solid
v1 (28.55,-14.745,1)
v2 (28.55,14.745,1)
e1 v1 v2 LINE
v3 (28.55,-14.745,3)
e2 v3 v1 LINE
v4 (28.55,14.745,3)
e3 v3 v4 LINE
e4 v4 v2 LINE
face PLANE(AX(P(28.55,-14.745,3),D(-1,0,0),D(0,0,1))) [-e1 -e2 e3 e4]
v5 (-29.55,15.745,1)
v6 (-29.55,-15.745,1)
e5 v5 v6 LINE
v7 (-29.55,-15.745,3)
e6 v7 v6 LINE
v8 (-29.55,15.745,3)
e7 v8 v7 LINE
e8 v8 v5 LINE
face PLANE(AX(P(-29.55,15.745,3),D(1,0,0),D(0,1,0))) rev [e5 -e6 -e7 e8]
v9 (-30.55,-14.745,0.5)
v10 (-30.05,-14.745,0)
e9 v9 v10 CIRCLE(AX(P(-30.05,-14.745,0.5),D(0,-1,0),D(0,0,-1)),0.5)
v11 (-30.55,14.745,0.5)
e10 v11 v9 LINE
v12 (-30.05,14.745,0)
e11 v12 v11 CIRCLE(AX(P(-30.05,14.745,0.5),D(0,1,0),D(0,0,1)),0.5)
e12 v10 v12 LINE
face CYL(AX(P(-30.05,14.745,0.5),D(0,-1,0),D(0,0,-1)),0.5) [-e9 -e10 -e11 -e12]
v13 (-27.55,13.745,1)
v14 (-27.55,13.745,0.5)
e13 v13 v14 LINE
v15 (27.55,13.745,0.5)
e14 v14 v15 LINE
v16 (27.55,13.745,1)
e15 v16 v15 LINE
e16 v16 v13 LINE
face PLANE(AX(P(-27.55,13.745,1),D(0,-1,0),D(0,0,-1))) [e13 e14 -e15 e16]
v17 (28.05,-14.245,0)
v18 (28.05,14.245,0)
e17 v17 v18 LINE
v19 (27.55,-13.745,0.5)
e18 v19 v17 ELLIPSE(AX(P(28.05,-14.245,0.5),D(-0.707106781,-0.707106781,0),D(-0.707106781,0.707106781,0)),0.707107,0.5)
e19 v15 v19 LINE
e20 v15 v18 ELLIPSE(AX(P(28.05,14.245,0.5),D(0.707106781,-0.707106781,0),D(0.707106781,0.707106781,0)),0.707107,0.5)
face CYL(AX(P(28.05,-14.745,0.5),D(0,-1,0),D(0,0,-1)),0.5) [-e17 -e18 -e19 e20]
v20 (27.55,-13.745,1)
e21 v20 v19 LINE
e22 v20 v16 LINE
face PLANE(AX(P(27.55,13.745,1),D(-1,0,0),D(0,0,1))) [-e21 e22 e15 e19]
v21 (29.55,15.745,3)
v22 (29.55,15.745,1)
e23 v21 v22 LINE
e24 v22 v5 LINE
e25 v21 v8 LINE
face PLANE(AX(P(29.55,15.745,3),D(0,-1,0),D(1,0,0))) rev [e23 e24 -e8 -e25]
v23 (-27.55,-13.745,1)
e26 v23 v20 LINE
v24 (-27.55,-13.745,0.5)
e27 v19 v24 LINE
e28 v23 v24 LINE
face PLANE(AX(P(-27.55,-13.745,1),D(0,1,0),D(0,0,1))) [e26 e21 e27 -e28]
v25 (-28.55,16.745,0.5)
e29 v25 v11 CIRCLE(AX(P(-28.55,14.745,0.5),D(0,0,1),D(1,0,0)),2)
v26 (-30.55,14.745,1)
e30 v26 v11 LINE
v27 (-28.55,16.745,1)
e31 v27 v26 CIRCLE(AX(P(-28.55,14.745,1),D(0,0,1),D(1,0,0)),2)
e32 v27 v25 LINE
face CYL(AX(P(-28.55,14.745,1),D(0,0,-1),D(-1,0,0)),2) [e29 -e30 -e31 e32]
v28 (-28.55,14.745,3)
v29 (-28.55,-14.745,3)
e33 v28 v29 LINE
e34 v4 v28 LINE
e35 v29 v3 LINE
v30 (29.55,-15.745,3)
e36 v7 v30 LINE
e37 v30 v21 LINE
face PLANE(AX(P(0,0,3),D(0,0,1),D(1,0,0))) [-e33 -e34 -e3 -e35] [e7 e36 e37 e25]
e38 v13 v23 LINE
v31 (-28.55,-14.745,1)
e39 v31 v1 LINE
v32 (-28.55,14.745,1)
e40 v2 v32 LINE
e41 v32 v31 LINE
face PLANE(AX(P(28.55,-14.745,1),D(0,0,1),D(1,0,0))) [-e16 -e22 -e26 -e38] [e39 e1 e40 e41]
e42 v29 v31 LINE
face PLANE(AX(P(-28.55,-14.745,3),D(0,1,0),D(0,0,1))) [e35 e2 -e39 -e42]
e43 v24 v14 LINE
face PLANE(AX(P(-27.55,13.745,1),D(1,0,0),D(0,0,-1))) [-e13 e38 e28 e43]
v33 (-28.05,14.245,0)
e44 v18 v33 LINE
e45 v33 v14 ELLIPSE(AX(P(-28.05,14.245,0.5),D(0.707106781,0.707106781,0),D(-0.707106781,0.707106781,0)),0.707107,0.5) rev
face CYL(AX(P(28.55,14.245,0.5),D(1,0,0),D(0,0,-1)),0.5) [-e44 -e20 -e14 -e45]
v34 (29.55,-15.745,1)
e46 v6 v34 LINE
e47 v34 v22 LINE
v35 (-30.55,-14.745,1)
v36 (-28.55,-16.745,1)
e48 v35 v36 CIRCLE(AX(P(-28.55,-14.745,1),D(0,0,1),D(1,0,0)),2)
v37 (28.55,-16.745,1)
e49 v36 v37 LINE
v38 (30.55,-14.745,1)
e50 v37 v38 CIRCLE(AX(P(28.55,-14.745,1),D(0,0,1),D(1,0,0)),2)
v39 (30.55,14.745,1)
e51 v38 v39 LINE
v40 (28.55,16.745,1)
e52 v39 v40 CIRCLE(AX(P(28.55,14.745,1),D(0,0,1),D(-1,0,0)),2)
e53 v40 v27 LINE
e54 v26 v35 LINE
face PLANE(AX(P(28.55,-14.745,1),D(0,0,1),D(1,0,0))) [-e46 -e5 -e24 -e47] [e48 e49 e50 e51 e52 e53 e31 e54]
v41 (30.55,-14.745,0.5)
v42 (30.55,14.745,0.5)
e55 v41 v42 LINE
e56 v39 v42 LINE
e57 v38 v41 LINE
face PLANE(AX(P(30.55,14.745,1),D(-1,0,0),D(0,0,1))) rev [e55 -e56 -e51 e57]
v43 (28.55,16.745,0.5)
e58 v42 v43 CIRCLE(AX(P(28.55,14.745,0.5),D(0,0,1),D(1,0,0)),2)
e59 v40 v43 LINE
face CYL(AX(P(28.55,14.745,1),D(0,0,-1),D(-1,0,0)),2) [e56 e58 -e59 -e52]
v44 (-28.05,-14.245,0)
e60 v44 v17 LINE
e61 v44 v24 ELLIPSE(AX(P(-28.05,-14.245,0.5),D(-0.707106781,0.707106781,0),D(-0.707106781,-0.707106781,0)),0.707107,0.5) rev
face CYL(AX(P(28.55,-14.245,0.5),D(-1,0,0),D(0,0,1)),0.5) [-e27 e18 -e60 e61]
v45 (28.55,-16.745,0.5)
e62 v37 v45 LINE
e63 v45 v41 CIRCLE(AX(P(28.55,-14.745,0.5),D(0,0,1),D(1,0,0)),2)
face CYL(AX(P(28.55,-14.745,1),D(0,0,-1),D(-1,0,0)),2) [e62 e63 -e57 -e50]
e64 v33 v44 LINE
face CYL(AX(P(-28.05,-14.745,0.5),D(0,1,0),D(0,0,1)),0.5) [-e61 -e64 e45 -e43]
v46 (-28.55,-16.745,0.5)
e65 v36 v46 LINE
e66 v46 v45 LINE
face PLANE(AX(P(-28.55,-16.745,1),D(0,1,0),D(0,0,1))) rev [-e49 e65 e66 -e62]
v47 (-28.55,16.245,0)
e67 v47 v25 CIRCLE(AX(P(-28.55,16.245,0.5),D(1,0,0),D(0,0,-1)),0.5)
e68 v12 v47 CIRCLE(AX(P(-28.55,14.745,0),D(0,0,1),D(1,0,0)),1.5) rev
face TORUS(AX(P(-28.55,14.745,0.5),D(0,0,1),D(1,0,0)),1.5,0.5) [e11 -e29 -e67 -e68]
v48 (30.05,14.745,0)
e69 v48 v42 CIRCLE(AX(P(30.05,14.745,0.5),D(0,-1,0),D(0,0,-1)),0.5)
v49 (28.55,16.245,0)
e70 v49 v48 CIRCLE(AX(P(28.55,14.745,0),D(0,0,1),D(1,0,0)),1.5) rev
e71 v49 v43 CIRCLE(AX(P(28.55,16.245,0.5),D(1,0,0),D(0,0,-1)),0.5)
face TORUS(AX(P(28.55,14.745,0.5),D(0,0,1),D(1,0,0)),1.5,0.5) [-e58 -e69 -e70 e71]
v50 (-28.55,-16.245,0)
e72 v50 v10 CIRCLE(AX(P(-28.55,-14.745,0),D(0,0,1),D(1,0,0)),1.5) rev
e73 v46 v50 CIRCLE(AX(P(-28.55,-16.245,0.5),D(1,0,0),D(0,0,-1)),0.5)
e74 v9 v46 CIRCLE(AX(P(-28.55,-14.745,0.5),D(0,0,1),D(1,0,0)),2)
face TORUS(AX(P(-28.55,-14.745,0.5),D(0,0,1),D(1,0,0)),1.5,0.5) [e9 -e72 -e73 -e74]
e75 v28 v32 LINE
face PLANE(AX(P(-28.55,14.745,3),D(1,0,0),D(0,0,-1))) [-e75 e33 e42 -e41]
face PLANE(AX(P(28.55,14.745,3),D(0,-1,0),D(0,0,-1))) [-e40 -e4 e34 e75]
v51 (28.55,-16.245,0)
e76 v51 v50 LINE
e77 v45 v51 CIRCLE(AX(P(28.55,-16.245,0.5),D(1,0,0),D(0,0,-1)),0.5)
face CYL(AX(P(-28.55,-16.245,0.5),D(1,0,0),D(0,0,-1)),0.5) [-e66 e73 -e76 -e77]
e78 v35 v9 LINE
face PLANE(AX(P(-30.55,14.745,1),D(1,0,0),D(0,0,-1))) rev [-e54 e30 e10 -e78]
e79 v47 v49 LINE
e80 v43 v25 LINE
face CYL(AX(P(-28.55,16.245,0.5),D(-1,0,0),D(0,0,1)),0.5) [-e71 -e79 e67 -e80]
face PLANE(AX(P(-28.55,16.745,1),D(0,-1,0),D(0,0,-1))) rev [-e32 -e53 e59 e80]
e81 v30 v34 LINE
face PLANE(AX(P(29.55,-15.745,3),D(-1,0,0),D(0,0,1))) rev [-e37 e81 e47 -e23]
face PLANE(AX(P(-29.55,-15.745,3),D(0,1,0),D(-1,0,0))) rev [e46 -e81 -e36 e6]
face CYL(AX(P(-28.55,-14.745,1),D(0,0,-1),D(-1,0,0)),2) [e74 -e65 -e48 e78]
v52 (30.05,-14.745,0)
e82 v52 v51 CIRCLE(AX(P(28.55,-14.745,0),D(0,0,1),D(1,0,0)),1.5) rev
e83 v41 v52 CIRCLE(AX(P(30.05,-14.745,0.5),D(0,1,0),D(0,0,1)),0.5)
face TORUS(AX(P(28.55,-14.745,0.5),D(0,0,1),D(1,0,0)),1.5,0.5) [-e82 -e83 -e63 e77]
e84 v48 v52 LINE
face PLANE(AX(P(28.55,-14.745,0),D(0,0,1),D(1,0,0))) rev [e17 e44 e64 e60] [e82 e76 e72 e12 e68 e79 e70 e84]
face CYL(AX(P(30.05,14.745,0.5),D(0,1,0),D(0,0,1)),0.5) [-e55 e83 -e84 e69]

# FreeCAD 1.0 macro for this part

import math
import FreeCAD as App
import Part
import Sketcher


def edges_at(feature, points):
    """Names of the edges that pass closest to the given points."""
    edges = feature.Shape.Edges
    near = lambda p: min(range(len(edges)), key=lambda i: edges[i].distToShape(Part.Vertex(*p))[0])
    return sorted({f"Edge{near(p) + 1}" for p in points})


def add_polygon(sketch, points):
    """Adds a closed chain of lines whose ends are joined by coincident constraints."""
    first, n = sketch.GeometryCount, len(points)
    for a, b in zip(points, points[1:] + points[:1]):
        sketch.addGeometry(Part.LineSegment(App.Vector(*a, 0), App.Vector(*b, 0)), False)
    for i in range(n):
        sketch.addConstraint(Sketcher.Constraint("Coincident", first + i, 2, first + (i + 1) % n, 1))

doc = App.newDocument("Part")
body = doc.addObject("PartDesign::Body", "Body")

sketch1 = body.newObject("Sketcher::SketchObject", "Sketch")
sketch1.AttachmentSupport = (doc.getObject("XY_Plane"), [""])
sketch1.MapMode = "FlatFace"
sketch1.addGeometry(Part.LineSegment(App.Vector(28.55, 16.745, 0), App.Vector(-28.55, 16.745, 0)), False)
sketch1.addGeometry(Part.ArcOfCircle(Part.Circle(App.Vector(-28.55, 14.745, 0), App.Vector(0, 0, 1), 2), math.radians(90), math.radians(180)), False)
sketch1.addGeometry(Part.LineSegment(App.Vector(-30.55, 14.745, 0), App.Vector(-30.55, -14.745, 0)), False)
sketch1.addGeometry(Part.ArcOfCircle(Part.Circle(App.Vector(-28.55, -14.745, 0), App.Vector(0, 0, 1), 2), math.radians(-180), math.radians(-90)), False)
sketch1.addGeometry(Part.LineSegment(App.Vector(-28.55, -16.745, 0), App.Vector(28.55, -16.745, 0)), False)
sketch1.addGeometry(Part.ArcOfCircle(Part.Circle(App.Vector(28.55, -14.745, 0), App.Vector(0, 0, 1), 2), math.radians(-90), math.radians(0)), False)
sketch1.addGeometry(Part.LineSegment(App.Vector(30.55, -14.745, 0), App.Vector(30.55, 14.745, 0)), False)
sketch1.addGeometry(Part.ArcOfCircle(Part.Circle(App.Vector(28.55, 14.745, 0), App.Vector(0, 0, 1), 2), math.radians(0), math.radians(90)), False)
add_polygon(sketch1, [(-27.55, -13.745), (-27.55, 13.745), (27.55, 13.745), (27.55, -13.745)])
sketch1.addConstraint(Sketcher.Constraint("Tangent", 0, 2, 1, 1))
sketch1.addConstraint(Sketcher.Constraint("Tangent", 1, 2, 2, 1))
sketch1.addConstraint(Sketcher.Constraint("Tangent", 2, 2, 3, 1))
sketch1.addConstraint(Sketcher.Constraint("Tangent", 3, 2, 4, 1))
sketch1.addConstraint(Sketcher.Constraint("Tangent", 4, 2, 5, 1))
sketch1.addConstraint(Sketcher.Constraint("Tangent", 5, 2, 6, 1))
sketch1.addConstraint(Sketcher.Constraint("Tangent", 6, 2, 7, 1))
sketch1.addConstraint(Sketcher.Constraint("Tangent", 7, 2, 0, 1))
sketch1.addConstraint(Sketcher.Constraint("Horizontal", 0))
sketch1.addConstraint(Sketcher.Constraint("Vertical", 2))
sketch1.addConstraint(Sketcher.Constraint("Horizontal", 4))
sketch1.addConstraint(Sketcher.Constraint("Vertical", 6))
sketch1.addConstraint(Sketcher.Constraint("Vertical", 8))
sketch1.addConstraint(Sketcher.Constraint("Horizontal", 9))
sketch1.addConstraint(Sketcher.Constraint("Vertical", 10))
sketch1.addConstraint(Sketcher.Constraint("Horizontal", 11))
sketch1.addConstraint(Sketcher.Constraint("Equal", 1, 3))
sketch1.addConstraint(Sketcher.Constraint("Equal", 3, 5))
sketch1.addConstraint(Sketcher.Constraint("Equal", 5, 7))
sketch1.addConstraint(Sketcher.Constraint("Symmetric", 1, 3, 5, 3, -1, 1))
sketch1.addConstraint(Sketcher.Constraint("Symmetric", 8, 2, 10, 2, -1, 1))
sketch1.addConstraint(Sketcher.Constraint("Radius", 1, 2.0))
sketch1.addConstraint(Sketcher.Constraint("DistanceX", 0, 2, 0, 1, 57.1))
sketch1.addConstraint(Sketcher.Constraint("DistanceX", 9, 1, 9, 2, 55.1))
sketch1.addConstraint(Sketcher.Constraint("DistanceY", 8, 2, 1, 3, 1.0))
sketch1.addConstraint(Sketcher.Constraint("DistanceY", 2, 2, 2, 1, 29.49))
pad1 = body.newObject("PartDesign::Pad", "Pad")
pad1.Profile = sketch1
pad1.Length = 1
doc.recompute()

fillet = body.newObject("PartDesign::Fillet", "Fillet")
fillet.Base = (pad1, edges_at(pad1, [
    (0, 16.745, 0),
    (29.964, 16.159, 0),
    (30.55, 0, 0),
    (29.964, -16.159, 0),
    (27.55, 0, 0),
    (0, 13.745, 0),
    (-27.55, 0, 0),
    (0, -13.745, 0),
    (0, -16.745, 0),
    (-29.964, -16.159, 0),
    (-30.55, 0, 0),
    (-29.964, 16.159, 0),
]))
fillet.Radius = 0.5

sketch2 = body.newObject("Sketcher::SketchObject", "Sketch001")
sketch2.AttachmentSupport = (doc.getObject("XY_Plane"), [""])
sketch2.MapMode = "FlatFace"
sketch2.AttachmentOffset = App.Placement(App.Vector(0, 0, 1), App.Rotation())
add_polygon(sketch2, [(-29.55, 15.745), (-29.55, -15.745), (29.55, -15.745), (29.55, 15.745)])
add_polygon(sketch2, [(28.55, -14.745), (-28.55, -14.745), (-28.55, 14.745), (28.55, 14.745)])
sketch2.addConstraint(Sketcher.Constraint("Vertical", 0))
sketch2.addConstraint(Sketcher.Constraint("Horizontal", 1))
sketch2.addConstraint(Sketcher.Constraint("Vertical", 2))
sketch2.addConstraint(Sketcher.Constraint("Horizontal", 3))
sketch2.addConstraint(Sketcher.Constraint("Horizontal", 4))
sketch2.addConstraint(Sketcher.Constraint("Vertical", 5))
sketch2.addConstraint(Sketcher.Constraint("Horizontal", 6))
sketch2.addConstraint(Sketcher.Constraint("Vertical", 7))
sketch2.addConstraint(Sketcher.Constraint("Symmetric", 0, 2, 2, 2, -1, 1))
sketch2.addConstraint(Sketcher.Constraint("Symmetric", 4, 2, 6, 2, -1, 1))
sketch2.addConstraint(Sketcher.Constraint("DistanceX", 1, 1, 1, 2, 59.1))
sketch2.addConstraint(Sketcher.Constraint("DistanceX", 4, 2, 4, 1, 57.1))
sketch2.addConstraint(Sketcher.Constraint("DistanceY", 0, 2, 4, 2, 1.0))
sketch2.addConstraint(Sketcher.Constraint("DistanceY", 0, 2, 0, 1, 31.49))
pad2 = body.newObject("PartDesign::Pad", "Pad001")
pad2.Profile = sketch2
pad2.Length = 2

doc.recompute()
